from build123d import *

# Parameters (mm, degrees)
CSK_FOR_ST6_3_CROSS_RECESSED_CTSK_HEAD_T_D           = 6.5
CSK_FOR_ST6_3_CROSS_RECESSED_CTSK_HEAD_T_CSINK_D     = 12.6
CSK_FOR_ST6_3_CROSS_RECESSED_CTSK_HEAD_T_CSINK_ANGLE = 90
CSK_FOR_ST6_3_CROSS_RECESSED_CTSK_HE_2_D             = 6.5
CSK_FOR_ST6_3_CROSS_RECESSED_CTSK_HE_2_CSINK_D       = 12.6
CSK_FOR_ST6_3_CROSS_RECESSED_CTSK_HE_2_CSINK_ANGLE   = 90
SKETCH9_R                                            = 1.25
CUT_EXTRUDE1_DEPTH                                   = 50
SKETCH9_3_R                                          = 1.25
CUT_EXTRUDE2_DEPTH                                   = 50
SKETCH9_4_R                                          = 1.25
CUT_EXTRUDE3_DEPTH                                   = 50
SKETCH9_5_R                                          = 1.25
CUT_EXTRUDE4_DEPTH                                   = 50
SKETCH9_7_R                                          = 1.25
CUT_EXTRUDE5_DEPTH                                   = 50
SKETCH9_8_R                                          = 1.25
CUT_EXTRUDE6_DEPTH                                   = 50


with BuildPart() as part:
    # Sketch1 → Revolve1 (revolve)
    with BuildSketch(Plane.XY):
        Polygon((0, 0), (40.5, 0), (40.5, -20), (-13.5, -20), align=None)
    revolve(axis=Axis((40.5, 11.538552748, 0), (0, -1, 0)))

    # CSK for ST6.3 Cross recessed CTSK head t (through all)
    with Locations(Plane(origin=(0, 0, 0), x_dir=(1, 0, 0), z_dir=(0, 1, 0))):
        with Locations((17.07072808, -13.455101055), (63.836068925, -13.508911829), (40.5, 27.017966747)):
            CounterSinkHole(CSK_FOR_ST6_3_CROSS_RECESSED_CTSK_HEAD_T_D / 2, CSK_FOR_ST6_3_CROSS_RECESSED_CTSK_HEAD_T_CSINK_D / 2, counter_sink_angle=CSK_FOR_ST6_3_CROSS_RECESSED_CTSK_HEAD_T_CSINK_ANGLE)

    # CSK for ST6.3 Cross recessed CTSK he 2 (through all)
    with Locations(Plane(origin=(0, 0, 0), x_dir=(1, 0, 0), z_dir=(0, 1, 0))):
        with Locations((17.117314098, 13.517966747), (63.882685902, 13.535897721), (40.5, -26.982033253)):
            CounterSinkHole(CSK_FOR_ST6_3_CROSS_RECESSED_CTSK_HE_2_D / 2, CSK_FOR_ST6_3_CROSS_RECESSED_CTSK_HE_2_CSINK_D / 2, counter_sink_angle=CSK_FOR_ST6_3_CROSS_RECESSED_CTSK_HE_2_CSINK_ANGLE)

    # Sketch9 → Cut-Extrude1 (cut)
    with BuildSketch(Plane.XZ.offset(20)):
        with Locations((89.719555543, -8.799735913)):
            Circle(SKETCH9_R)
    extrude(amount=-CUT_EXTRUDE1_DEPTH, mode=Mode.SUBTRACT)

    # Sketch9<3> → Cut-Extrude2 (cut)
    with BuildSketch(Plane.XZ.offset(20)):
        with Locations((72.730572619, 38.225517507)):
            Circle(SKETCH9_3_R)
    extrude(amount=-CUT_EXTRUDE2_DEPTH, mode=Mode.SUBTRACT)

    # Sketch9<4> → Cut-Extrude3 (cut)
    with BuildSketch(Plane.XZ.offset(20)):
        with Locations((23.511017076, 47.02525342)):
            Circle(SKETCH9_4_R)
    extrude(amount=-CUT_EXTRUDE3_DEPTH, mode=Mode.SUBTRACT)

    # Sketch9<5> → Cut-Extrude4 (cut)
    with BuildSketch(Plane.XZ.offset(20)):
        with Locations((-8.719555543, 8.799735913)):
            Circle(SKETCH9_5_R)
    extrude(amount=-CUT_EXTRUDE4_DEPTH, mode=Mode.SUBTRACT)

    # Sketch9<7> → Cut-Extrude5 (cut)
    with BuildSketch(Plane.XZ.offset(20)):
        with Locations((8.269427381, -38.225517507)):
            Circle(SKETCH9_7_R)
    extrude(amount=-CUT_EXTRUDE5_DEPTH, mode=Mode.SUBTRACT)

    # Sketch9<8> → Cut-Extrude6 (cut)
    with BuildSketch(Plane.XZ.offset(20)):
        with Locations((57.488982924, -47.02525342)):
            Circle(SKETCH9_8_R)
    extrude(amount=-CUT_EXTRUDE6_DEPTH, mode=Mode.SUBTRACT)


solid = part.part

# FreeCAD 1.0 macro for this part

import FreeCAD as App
import Part
import Sketcher

V = App.Vector
Q = App.Units.Quantity

doc = App.newDocument("Part")
body = doc.addObject("PartDesign::Body", "Body")

# Sketch on XY plane
sketch1 = doc.addObject("Sketcher::SketchObject", "Sketch")
body.addObject(sketch1)
sketch1.AttachmentSupport = (doc.XY_Plane, [""])
sketch1.MapMode = "FlatFace"
sketch1.addGeometry([
    Part.LineSegment(V(40.5, 0, 0), V(0, 0, 0)),
    Part.LineSegment(V(0, 0, 0), V(-13.5, -20, 0)),
    Part.LineSegment(V(-13.5, -20, 0), V(40.5, -20, 0)),
    Part.LineSegment(V(40.5, -20, 0), V(40.5, 0, 0)),
], False)
sketch1.addGeometry(Part.LineSegment(V(40.5, 0, 0), V(40.5, -20, 0)), True)  # axis
sketch1.addConstraint([
    Sketcher.Constraint("Coincident", 0, 2, 1, 1),
    Sketcher.Constraint("Coincident", 1, 2, 2, 1),
    Sketcher.Constraint("Coincident", 2, 2, 3, 1),
    Sketcher.Constraint("Coincident", 3, 2, 0, 1),
    Sketcher.Constraint("Horizontal", 0),
    Sketcher.Constraint("Horizontal", 2),
    Sketcher.Constraint("Vertical", 3),
    Sketcher.Constraint("Vertical", 4),
    Sketcher.Constraint("Coincident", 0, 2, -1, 1),
    Sketcher.Constraint("Coincident", 4, 1, 3, 2),
    Sketcher.Constraint("Horizontal", 1, 2, 4, 2),
    Sketcher.Constraint("DistanceX", 2, 1, 2, 2, Q("54 mm")),
    Sketcher.Constraint("DistanceY", 3, 1, 3, 2, Q("20 mm")),
    Sketcher.Constraint("DistanceX", 0, 2, 0, 1, Q("40.5 mm")),
])
revolution = doc.addObject("PartDesign::Revolution", "Revolution")
body.addObject(revolution)
revolution.Profile = sketch1
revolution.ReferenceAxis = (sketch1, ["Axis0"])
revolution.Angle = 360

# Sketch on XZ plane
sketch2 = doc.addObject("Sketcher::SketchObject", "Sketch001")
body.addObject(sketch2)
sketch2.AttachmentSupport = (doc.XZ_Plane, [""])
sketch2.MapMode = "FlatFace"
sketch2.addGeometry([
    Part.Circle(V(17.070728, 13.455101, 0), V(0, 0, 1), 3.25),
    Part.Circle(V(63.836069, 13.508912, 0), V(0, 0, 1), 3.25),
    Part.Circle(V(40.5, -27.017967, 0), V(0, 0, 1), 3.25),
], False)
sketch2.addConstraint([
    Sketcher.Constraint("Equal", 0, 1),
    Sketcher.Constraint("Equal", 1, 2),
    Sketcher.Constraint("Diameter", 0, Q("6.5 mm")),
    Sketcher.Constraint("DistanceX", -1, 1, 2, 3, Q("40.5 mm")),
    Sketcher.Constraint("DistanceY", -1, 1, 0, 3, Q("13.455101 mm")),
    Sketcher.Constraint("DistanceX", -1, 1, 0, 3, Q("17.070728 mm")),
    Sketcher.Constraint("DistanceX", -1, 1, 1, 3, Q("63.836069 mm")),
    Sketcher.Constraint("DistanceY", -1, 1, 1, 3, Q("13.508912 mm")),
    Sketcher.Constraint("DistanceY", 2, 3, 1, 3, Q("40.526879 mm")),
])
doc.recompute()
hole = doc.addObject("PartDesign::Hole", "Hole")
body.addObject(hole)
hole.Profile = sketch2
hole.ThreadType = "None"
hole.Diameter = 6.5
hole.DepthType = "ThroughAll"
hole.HoleCutType = "Countersink"
hole.HoleCutDiameter = 12.6
hole.HoleCutCountersinkAngle = 90
hole.Reversed = True

# Sketch on XZ plane
sketch3 = doc.addObject("Sketcher::SketchObject", "Sketch002")
body.addObject(sketch3)
sketch3.AttachmentSupport = (doc.XZ_Plane, [""])
sketch3.MapMode = "FlatFace"
sketch3.addGeometry([
    Part.Circle(V(17.117314, -13.517967, 0), V(0, 0, 1), 3.25),
    Part.Circle(V(63.882686, -13.535898, 0), V(0, 0, 1), 3.25),
    Part.Circle(V(40.5, 26.982033, 0), V(0, 0, 1), 3.25),
], False)
sketch3.addConstraint([
    Sketcher.Constraint("Equal", 0, 1),
    Sketcher.Constraint("Equal", 1, 2),
    Sketcher.Constraint("Diameter", 0, Q("6.5 mm")),
    Sketcher.Constraint("DistanceX", -1, 1, 2, 3, Q("40.5 mm")),
    Sketcher.Constraint("DistanceY", 0, 3, 2, 3, Q("40.5 mm")),
    Sketcher.Constraint("DistanceX", 0, 3, 1, 3, Q("46.765372 mm")),
    Sketcher.Constraint("DistanceY", 1, 3, 0, 3, Q("0.017931 mm")),
    Sketcher.Constraint("DistanceX", -1, 1, 0, 3, Q("17.117314 mm")),
    Sketcher.Constraint("DistanceY", 0, 3, -1, 1, Q("13.517967 mm")),
])
doc.recompute()
hole2 = doc.addObject("PartDesign::Hole", "Hole001")
body.addObject(hole2)
hole2.Profile = sketch3
hole2.ThreadType = "None"
hole2.Diameter = 6.5
hole2.DepthType = "ThroughAll"
hole2.HoleCutType = "Countersink"
hole2.HoleCutDiameter = 12.6
hole2.HoleCutCountersinkAngle = 90
hole2.Reversed = True

# Sketch on XZ plane
sketch4 = doc.addObject("Sketcher::SketchObject", "Sketch003")
body.addObject(sketch4)
sketch4.AttachmentSupport = (doc.XZ_Plane, [""])
sketch4.MapMode = "FlatFace"
sketch4.AttachmentOffset = App.Placement(V(0, 0, 20), App.Rotation())
sketch4.addGeometry(Part.Circle(V(89.719556, -8.799736, 0), V(0, 0, 1), 1.25), False)
sketch4.addConstraint([
    Sketcher.Constraint("Diameter", 0, Q("2.5 mm")),
    Sketcher.Constraint("DistanceX", -1, 1, 0, 3, Q("89.719556 mm")),
    Sketcher.Constraint("DistanceY", 0, 3, -1, 1, Q("8.799736 mm")),
])
pocket1 = doc.addObject("PartDesign::Pocket", "Pocket")
body.addObject(pocket1)
pocket1.Profile = sketch4
pocket1.Length = 50

# Sketch on XZ plane
sketch5 = doc.addObject("Sketcher::SketchObject", "Sketch004")
body.addObject(sketch5)
sketch5.AttachmentSupport = (doc.XZ_Plane, [""])
sketch5.MapMode = "FlatFace"
sketch5.AttachmentOffset = App.Placement(V(0, 0, 20), App.Rotation())
sketch5.addGeometry(Part.Circle(V(72.730573, 38.225518, 0), V(0, 0, 1), 1.25), False)
sketch5.addConstraint([
    Sketcher.Constraint("Diameter", 0, Q("2.5 mm")),
    Sketcher.Constraint("DistanceX", -1, 1, 0, 3, Q("72.730573 mm")),
    Sketcher.Constraint("DistanceY", -1, 1, 0, 3, Q("38.225518 mm")),
])
pocket2 = doc.addObject("PartDesign::Pocket", "Pocket001")
body.addObject(pocket2)
pocket2.Profile = sketch5
pocket2.Length = 50

# Sketch on XZ plane
sketch6 = doc.addObject("Sketcher::SketchObject", "Sketch005")
body.addObject(sketch6)
sketch6.AttachmentSupport = (doc.XZ_Plane, [""])
sketch6.MapMode = "FlatFace"
sketch6.AttachmentOffset = App.Placement(V(0, 0, 20), App.Rotation())
sketch6.addGeometry(Part.Circle(V(23.511017, 47.025253, 0), V(0, 0, 1), 1.25), False)
sketch6.addConstraint([
    Sketcher.Constraint("Diameter", 0, Q("2.5 mm")),
    Sketcher.Constraint("DistanceX", -1, 1, 0, 3, Q("23.511017 mm")),
    Sketcher.Constraint("DistanceY", -1, 1, 0, 3, Q("47.025253 mm")),
])
pocket3 = doc.addObject("PartDesign::Pocket", "Pocket002")
body.addObject(pocket3)
pocket3.Profile = sketch6
pocket3.Length = 50

# Sketch on XZ plane
sketch7 = doc.addObject("Sketcher::SketchObject", "Sketch006")
body.addObject(sketch7)
sketch7.AttachmentSupport = (doc.XZ_Plane, [""])
sketch7.MapMode = "FlatFace"
sketch7.AttachmentOffset = App.Placement(V(0, 0, 20), App.Rotation())
sketch7.addGeometry(Part.Circle(V(-8.719556, 8.799736, 0), V(0, 0, 1), 1.25), False)
sketch7.addConstraint([
    Sketcher.Constraint("Diameter", 0, Q("2.5 mm")),
    Sketcher.Constraint("DistanceX", 0, 3, -1, 1, Q("8.719556 mm")),
    Sketcher.Constraint("DistanceY", -1, 1, 0, 3, Q("8.799736 mm")),
])
pocket4 = doc.addObject("PartDesign::Pocket", "Pocket003")
body.addObject(pocket4)
pocket4.Profile = sketch7
pocket4.Length = 50

# Sketch on XZ plane
sketch8 = doc.addObject("Sketcher::SketchObject", "Sketch007")
body.addObject(sketch8)
sketch8.AttachmentSupport = (doc.XZ_Plane, [""])
sketch8.MapMode = "FlatFace"
sketch8.AttachmentOffset = App.Placement(V(0, 0, 20), App.Rotation())
sketch8.addGeometry(Part.Circle(V(8.269427, -38.225518, 0), V(0, 0, 1), 1.25), False)
sketch8.addConstraint([
    Sketcher.Constraint("Diameter", 0, Q("2.5 mm")),
    Sketcher.Constraint("DistanceX", -1, 1, 0, 3, Q("8.269427 mm")),
    Sketcher.Constraint("DistanceY", 0, 3, -1, 1, Q("38.225518 mm")),
])
pocket5 = doc.addObject("PartDesign::Pocket", "Pocket004")
body.addObject(pocket5)
pocket5.Profile = sketch8
pocket5.Length = 50

# Sketch on XZ plane
sketch9 = doc.addObject("Sketcher::SketchObject", "Sketch008")
body.addObject(sketch9)
sketch9.AttachmentSupport = (doc.XZ_Plane, [""])
sketch9.MapMode = "FlatFace"
sketch9.AttachmentOffset = App.Placement(V(0, 0, 20), App.Rotation())
sketch9.addGeometry(Part.Circle(V(57.488983, -47.025253, 0), V(0, 0, 1), 1.25), False)
sketch9.addConstraint([
    Sketcher.Constraint("Diameter", 0, Q("2.5 mm")),
    Sketcher.Constraint("DistanceX", -1, 1, 0, 3, Q("57.488983 mm")),
    Sketcher.Constraint("DistanceY", 0, 3, -1, 1, Q("47.025253 mm")),
])
pocket6 = doc.addObject("PartDesign::Pocket", "Pocket005")
body.addObject(pocket6)
pocket6.Profile = sketch9
pocket6.Length = 50

doc.recompute()
